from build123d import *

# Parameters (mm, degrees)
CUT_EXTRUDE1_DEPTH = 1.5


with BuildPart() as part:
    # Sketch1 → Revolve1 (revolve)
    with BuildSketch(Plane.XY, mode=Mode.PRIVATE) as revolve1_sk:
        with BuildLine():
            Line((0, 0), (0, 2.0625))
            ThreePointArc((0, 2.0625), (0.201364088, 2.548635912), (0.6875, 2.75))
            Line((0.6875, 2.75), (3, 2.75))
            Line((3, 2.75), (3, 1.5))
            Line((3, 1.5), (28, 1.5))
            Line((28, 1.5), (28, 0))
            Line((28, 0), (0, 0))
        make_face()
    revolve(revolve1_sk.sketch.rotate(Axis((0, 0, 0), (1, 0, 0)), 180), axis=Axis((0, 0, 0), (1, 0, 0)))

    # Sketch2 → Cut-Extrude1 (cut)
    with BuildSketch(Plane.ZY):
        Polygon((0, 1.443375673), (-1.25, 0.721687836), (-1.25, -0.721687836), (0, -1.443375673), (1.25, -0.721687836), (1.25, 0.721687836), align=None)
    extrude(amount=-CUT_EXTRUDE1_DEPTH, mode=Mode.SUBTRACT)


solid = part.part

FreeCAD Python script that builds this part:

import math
import FreeCAD as App
import Part
import Sketcher

V = App.Vector
Q = App.Units.Quantity


def add_polygon(sketch, points):
    """Adds a closed chain of lines whose ends are joined by coincident constraints."""
    first, n = sketch.GeometryCount, len(points)
    for a, b in zip(points, points[1:] + points[:1]):
        sketch.addGeometry(Part.LineSegment(App.Vector(*a, 0), App.Vector(*b, 0)), False)
    for i in range(n):
        sketch.addConstraint(Sketcher.Constraint("Coincident", first + i, 2, first + (i + 1) % n, 1))

doc = App.newDocument("Part")
body = doc.addObject("PartDesign::Body", "Body")

sketch1 = doc.addObject("Sketcher::SketchObject", "Sketch")
body.addObject(sketch1)
sketch1.AttachmentSupport = (doc.XY_Plane, [""])
sketch1.MapMode = "FlatFace"
sketch1.addGeometry(Part.LineSegment(V(0, 2.0625, 0), V(0, 0, 0)), False)
sketch1.addGeometry(Part.LineSegment(V(0, 0, 0), V(28, 0, 0)), False)
sketch1.addGeometry(Part.LineSegment(V(28, 0, 0), V(28, 1.5, 0)), False)
sketch1.addGeometry(Part.LineSegment(V(28, 1.5, 0), V(3, 1.5, 0)), False)
sketch1.addGeometry(Part.LineSegment(V(3, 1.5, 0), V(3, 2.75, 0)), False)
sketch1.addGeometry(Part.LineSegment(V(3, 2.75, 0), V(0.6875, 2.75, 0)), False)
sketch1.addGeometry(Part.ArcOfCircle(Part.Circle(V(0.6875, 2.0625, 0), V(0, 0, 1), 0.6875), math.radians(90), math.radians(180)), False)
sketch1.addConstraint(Sketcher.Constraint("Coincident", 0, 2, 1, 1))
sketch1.addConstraint(Sketcher.Constraint("Coincident", 1, 2, 2, 1))
sketch1.addConstraint(Sketcher.Constraint("Coincident", 2, 2, 3, 1))
sketch1.addConstraint(Sketcher.Constraint("Coincident", 3, 2, 4, 1))
sketch1.addConstraint(Sketcher.Constraint("Coincident", 4, 2, 5, 1))
sketch1.addConstraint(Sketcher.Constraint("Tangent", 5, 2, 6, 1))
sketch1.addConstraint(Sketcher.Constraint("Tangent", 6, 2, 0, 1))
sketch1.addConstraint(Sketcher.Constraint("Vertical", 0))
sketch1.addConstraint(Sketcher.Constraint("Horizontal", 1))
sketch1.addConstraint(Sketcher.Constraint("Vertical", 2))
sketch1.addConstraint(Sketcher.Constraint("Horizontal", 3))
sketch1.addConstraint(Sketcher.Constraint("Vertical", 4))
sketch1.addConstraint(Sketcher.Constraint("Horizontal", 5))
sketch1.addConstraint(Sketcher.Constraint("Coincident", 0, 2, -1, 1))
sketch1.addConstraint(Sketcher.Constraint("DistanceX", 1, 1, 1, 2, 28.0))
sketch1.addConstraint(Sketcher.Constraint("DistanceX", 3, 2, 3, 1, 25.0))
sketch1.addConstraint(Sketcher.Constraint("DistanceY", 2, 1, 2, 2, 1.5))
sketch1.addConstraint(Sketcher.Constraint("DistanceY", 4, 1, 4, 2, 1.25))
sketch1.addConstraint(Sketcher.Constraint("Radius", 6, 0.6875))
revolution = doc.addObject("PartDesign::Revolution", "Revolution")
body.addObject(revolution)
revolution.Profile = sketch1
revolution.ReferenceAxis = (sketch1, ["H_Axis"])
revolution.Angle = 360

sketch2 = doc.addObject("Sketcher::SketchObject", "Sketch001")
body.addObject(sketch2)
sketch2.AttachmentSupport = (doc.YZ_Plane, [""])
sketch2.MapMode = "FlatFace"
add_polygon(sketch2, [(1.443376, 0), (0.721688, -1.25), (-0.721688, -1.25), (-1.443376, 0), (-0.721688, 1.25), (0.721688, 1.25)])
sketch2.addConstraint(Sketcher.Constraint("Horizontal", 1))
sketch2.addConstraint(Sketcher.Constraint("Horizontal", 4))
sketch2.addConstraint(Sketcher.Constraint("Symmetric", 0, 2, 3, 2, -1, 1))
sketch2.addConstraint(Sketcher.Constraint("Symmetric", 2, 2, 5, 2, -1, 1))
sketch2.addConstraint(Sketcher.Constraint("PointOnObject", 2, 2, -1))
sketch2.addConstraint(Sketcher.Constraint("Parallel", 2, 5))
sketch2.addConstraint(Sketcher.Constraint("Vertical", 1, 2, 3, 2))
sketch2.addConstraint(Sketcher.Constraint("Angle", 0, Q("-120 deg")))
sketch2.addConstraint(Sketcher.Constraint("DistanceY", 1, 2, 3, 2, 2.5))
sketch2.addConstraint(Sketcher.Constraint("DistanceX", 1, 2, 1, 1, 1.443376))
pocket1 = doc.addObject("PartDesign::Pocket", "Pocket")
body.addObject(pocket1)
pocket1.Profile = sketch2
pocket1.Length = 1.5
pocket1.Reversed = True

doc.recompute()
